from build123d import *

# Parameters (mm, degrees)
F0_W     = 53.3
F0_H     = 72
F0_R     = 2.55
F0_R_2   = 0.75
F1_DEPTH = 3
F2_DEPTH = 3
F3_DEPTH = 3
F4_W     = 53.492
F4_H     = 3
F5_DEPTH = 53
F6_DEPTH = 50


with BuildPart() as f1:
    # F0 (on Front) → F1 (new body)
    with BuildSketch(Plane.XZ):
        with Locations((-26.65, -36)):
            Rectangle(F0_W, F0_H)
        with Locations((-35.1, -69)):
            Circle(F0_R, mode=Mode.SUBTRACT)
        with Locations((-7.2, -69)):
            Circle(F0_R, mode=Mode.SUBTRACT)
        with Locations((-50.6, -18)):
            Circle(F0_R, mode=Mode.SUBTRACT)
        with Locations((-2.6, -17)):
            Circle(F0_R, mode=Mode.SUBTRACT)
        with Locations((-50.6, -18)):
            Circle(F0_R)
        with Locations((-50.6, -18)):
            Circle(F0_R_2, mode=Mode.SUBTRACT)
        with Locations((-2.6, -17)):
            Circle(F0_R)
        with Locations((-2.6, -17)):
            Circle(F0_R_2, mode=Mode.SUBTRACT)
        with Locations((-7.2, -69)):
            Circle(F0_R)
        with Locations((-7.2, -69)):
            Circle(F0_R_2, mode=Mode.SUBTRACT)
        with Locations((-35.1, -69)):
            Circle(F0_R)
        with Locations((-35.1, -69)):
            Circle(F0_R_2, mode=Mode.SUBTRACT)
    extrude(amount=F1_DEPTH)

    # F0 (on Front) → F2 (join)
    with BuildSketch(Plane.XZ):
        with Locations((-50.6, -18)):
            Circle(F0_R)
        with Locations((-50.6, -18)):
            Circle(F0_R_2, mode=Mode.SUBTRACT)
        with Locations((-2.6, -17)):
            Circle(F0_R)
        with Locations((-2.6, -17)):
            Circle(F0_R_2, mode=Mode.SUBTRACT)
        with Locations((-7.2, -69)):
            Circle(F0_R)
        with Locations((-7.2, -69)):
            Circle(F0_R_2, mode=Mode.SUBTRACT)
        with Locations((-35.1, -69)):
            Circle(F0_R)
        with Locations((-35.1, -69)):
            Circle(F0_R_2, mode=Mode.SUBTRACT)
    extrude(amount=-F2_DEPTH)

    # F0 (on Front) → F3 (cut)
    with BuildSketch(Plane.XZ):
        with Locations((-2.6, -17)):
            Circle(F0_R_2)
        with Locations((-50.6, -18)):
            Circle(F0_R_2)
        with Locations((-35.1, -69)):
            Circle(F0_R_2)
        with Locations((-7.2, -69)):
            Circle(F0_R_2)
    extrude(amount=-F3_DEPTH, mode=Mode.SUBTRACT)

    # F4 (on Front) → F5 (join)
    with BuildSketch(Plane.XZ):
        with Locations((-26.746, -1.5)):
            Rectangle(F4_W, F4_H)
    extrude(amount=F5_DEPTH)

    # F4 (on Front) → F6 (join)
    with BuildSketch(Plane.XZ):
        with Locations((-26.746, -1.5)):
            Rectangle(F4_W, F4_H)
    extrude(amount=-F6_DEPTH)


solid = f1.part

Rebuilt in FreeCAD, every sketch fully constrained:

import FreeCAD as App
import Part
import Sketcher

V = App.Vector


def add_polygon(sketch, points):
    """Adds a closed chain of lines whose ends are joined by coincident constraints."""
    first, n = sketch.GeometryCount, len(points)
    for a, b in zip(points, points[1:] + points[:1]):
        sketch.addGeometry(Part.LineSegment(App.Vector(*a, 0), App.Vector(*b, 0)), False)
    for i in range(n):
        sketch.addConstraint(Sketcher.Constraint("Coincident", first + i, 2, first + (i + 1) % n, 1))

doc = App.newDocument("Part")
body = doc.addObject("PartDesign::Body", "Body")

# Sketch on XZ plane
sketch1 = doc.addObject("Sketcher::SketchObject", "Sketch")
body.addObject(sketch1)
sketch1.AttachmentSupport = (doc.XZ_Plane, [""])
sketch1.MapMode = "FlatFace"
add_polygon(sketch1, [(-53.3, 0), (-53.3, -72), (0, -72), (0, 0)])  # lines 0-3
sketch1.addGeometry(Part.Circle(V(-35.1, -69, 0), V(0, 0, 1), 0.8), False)  # 4
sketch1.addGeometry(Part.Circle(V(-7.2, -69, 0), V(0, 0, 1), 0.8), False)  # 5
sketch1.addGeometry(Part.Circle(V(-50.6, -18, 0), V(0, 0, 1), 0.8), False)  # 6
sketch1.addGeometry(Part.Circle(V(-2.6, -17, 0), V(0, 0, 1), 0.8), False)  # 7
sketch1.addConstraint([
    Sketcher.Constraint("Vertical", 0),
    Sketcher.Constraint("Horizontal", 1),
    Sketcher.Constraint("Vertical", 2),
    Sketcher.Constraint("Horizontal", 3),
    Sketcher.Constraint("Coincident", 2, 2, -1, 1),
    Sketcher.Constraint("Equal", 4, 5),
    Sketcher.Constraint("Equal", 5, 6),
    Sketcher.Constraint("Equal", 6, 7),
    Sketcher.Constraint("Horizontal", 4, 3, 5, 3),
    Sketcher.Constraint("Diameter", 4, 1.5),
    Sketcher.Constraint("DistanceY", 0, 2, 0, 1, 72.0),
    Sketcher.Constraint("DistanceX", 1, 1, 1, 2, 53.3),
    Sketcher.Constraint("DistanceY", 4, 3, -1, 1, 69.0),
    Sketcher.Constraint("DistanceY", 6, 3, -1, 1, 18.0),
    Sketcher.Constraint("DistanceY", 7, 3, -1, 1, 17.0),
    Sketcher.Constraint("DistanceX", 6, 3, 7, 3, 48.0),
    Sketcher.Constraint("DistanceX", 4, 3, -1, 1, 35.1),
    Sketcher.Constraint("DistanceX", 5, 3, -1, 1, 7.2),
    Sketcher.Constraint("DistanceX", 6, 3, -1, 1, 50.6),
])
pad1 = doc.addObject("PartDesign::Pad", "Pad")
body.addObject(pad1)
pad1.Profile = sketch1
pad1.Length = 3

# Sketch on XZ plane
sketch2 = doc.addObject("Sketcher::SketchObject", "Sketch001")
body.addObject(sketch2)
sketch2.AttachmentSupport = (doc.XZ_Plane, [""])
sketch2.MapMode = "FlatFace"
sketch2.addGeometry([
    Part.Circle(V(-50.6, -18, 0), V(0, 0, 1), 2.5),  # 0
    Part.Circle(V(-50.6, -18, 0), V(0, 0, 1), 0.8),  # 1
    Part.Circle(V(-2.6, -17, 0), V(0, 0, 1), 2.5),  # 2
    Part.Circle(V(-2.6, -17, 0), V(0, 0, 1), 0.8),  # 3
    Part.Circle(V(-7.2, -69, 0), V(0, 0, 1), 2.5),  # 4
    Part.Circle(V(-7.2, -69, 0), V(0, 0, 1), 0.8),  # 5
    Part.Circle(V(-35.1, -69, 0), V(0, 0, 1), 2.5),  # 6
    Part.Circle(V(-35.1, -69, 0), V(0, 0, 1), 0.8),  # 7
], False)
sketch2.addConstraint([
    Sketcher.Constraint("Coincident", 1, 3, 0, 3),
    Sketcher.Constraint("Coincident", 3, 3, 2, 3),
    Sketcher.Constraint("Coincident", 5, 3, 4, 3),
    Sketcher.Constraint("Coincident", 7, 3, 6, 3),
    Sketcher.Constraint("Equal", 0, 2),
    Sketcher.Constraint("Equal", 1, 3),
    Sketcher.Constraint("Equal", 2, 4),
    Sketcher.Constraint("Equal", 3, 5),
    Sketcher.Constraint("Equal", 4, 6),
    Sketcher.Constraint("Equal", 5, 7),
    Sketcher.Constraint("Horizontal", 5, 3, 6, 3),
    Sketcher.Constraint("Diameter", 0, 5.1),
    Sketcher.Constraint("Diameter", 1, 1.5),
    Sketcher.Constraint("DistanceY", 0, 3, -1, 1, 18.0),
    Sketcher.Constraint("DistanceY", 2, 3, -1, 1, 17.0),
    Sketcher.Constraint("DistanceY", 4, 3, -1, 1, 69.0),
    Sketcher.Constraint("DistanceX", 0, 3, 2, 3, 48.0),
    Sketcher.Constraint("DistanceX", 0, 3, -1, 1, 50.6),
    Sketcher.Constraint("DistanceX", 4, 3, -1, 1, 7.2),
    Sketcher.Constraint("DistanceX", 6, 3, -1, 1, 35.1),
])
pad2 = doc.addObject("PartDesign::Pad", "Pad001")
body.addObject(pad2)
pad2.Profile = sketch2
pad2.Length = 3
pad2.Reversed = True

# Sketch on XZ plane
sketch3 = doc.addObject("Sketcher::SketchObject", "Sketch002")
body.addObject(sketch3)
sketch3.AttachmentSupport = (doc.XZ_Plane, [""])
sketch3.MapMode = "FlatFace"
sketch3.addGeometry([
    Part.Circle(V(-2.6, -17, 0), V(0, 0, 1), 0.8),
    Part.Circle(V(-50.6, -18, 0), V(0, 0, 1), 0.8),
    Part.Circle(V(-35.1, -69, 0), V(0, 0, 1), 0.8),
    Part.Circle(V(-7.2, -69, 0), V(0, 0, 1), 0.8),
], False)
sketch3.addConstraint([
    Sketcher.Constraint("Equal", 0, 1),
    Sketcher.Constraint("Equal", 1, 2),
    Sketcher.Constraint("Equal", 2, 3),
    Sketcher.Constraint("Horizontal", 2, 3, 3, 3),
    Sketcher.Constraint("Diameter", 0, 1.5),
    Sketcher.Constraint("DistanceY", 0, 3, -1, 1, 17.0),
    Sketcher.Constraint("DistanceY", 1, 3, -1, 1, 18.0),
    Sketcher.Constraint("DistanceY", 2, 3, -1, 1, 69.0),
    Sketcher.Constraint("DistanceX", 1, 3, 0, 3, 48.0),
    Sketcher.Constraint("DistanceX", 0, 3, -1, 1, 2.6),
    Sketcher.Constraint("DistanceX", 2, 3, -1, 1, 35.1),
    Sketcher.Constraint("DistanceX", 3, 3, -1, 1, 7.2),
])
pocket1 = doc.addObject("PartDesign::Pocket", "Pocket")
body.addObject(pocket1)
pocket1.Profile = sketch3
pocket1.Length = 3

# Sketch on XZ plane
sketch4 = doc.addObject("Sketcher::SketchObject", "Sketch003")
body.addObject(sketch4)
sketch4.AttachmentSupport = (doc.XZ_Plane, [""])
sketch4.MapMode = "FlatFace"
add_polygon(sketch4, [(-53.5, 0), (-53.5, -3), (0, -3), (0, 0)])  # lines 0-3
sketch4.addConstraint([
    Sketcher.Constraint("Vertical", 0),
    Sketcher.Constraint("Horizontal", 1),
    Sketcher.Constraint("Vertical", 2),
    Sketcher.Constraint("Horizontal", 3),
    Sketcher.Constraint("Coincident", 2, 2, -1, 1),
    Sketcher.Constraint("DistanceY", 0, 2, 0, 1, 3.0),
    Sketcher.Constraint("DistanceX", 1, 1, 1, 2, 53.492),
])
pad3 = doc.addObject("PartDesign::Pad", "Pad002")
body.addObject(pad3)
pad3.Profile = sketch4
pad3.Length = 53

# Sketch on XZ plane
sketch5 = doc.addObject("Sketcher::SketchObject", "Sketch004")
body.addObject(sketch5)
sketch5.AttachmentSupport = (doc.XZ_Plane, [""])
sketch5.MapMode = "FlatFace"
add_polygon(sketch5, [(-53.5, 0), (-53.5, -3), (0, -3), (0, 0)])  # lines 0-3
sketch5.addConstraint([
    Sketcher.Constraint("Vertical", 0),
    Sketcher.Constraint("Horizontal", 1),
    Sketcher.Constraint("Vertical", 2),
    Sketcher.Constraint("Horizontal", 3),
    Sketcher.Constraint("Coincident", 2, 2, -1, 1),
    Sketcher.Constraint("DistanceY", 0, 2, 0, 1, 3.0),
    Sketcher.Constraint("DistanceX", 1, 1, 1, 2, 53.492),
])
pad4 = doc.addObject("PartDesign::Pad", "Pad003")
body.addObject(pad4)
pad4.Profile = sketch5
pad4.Length = 50
pad4.Reversed = True

doc.recompute()
